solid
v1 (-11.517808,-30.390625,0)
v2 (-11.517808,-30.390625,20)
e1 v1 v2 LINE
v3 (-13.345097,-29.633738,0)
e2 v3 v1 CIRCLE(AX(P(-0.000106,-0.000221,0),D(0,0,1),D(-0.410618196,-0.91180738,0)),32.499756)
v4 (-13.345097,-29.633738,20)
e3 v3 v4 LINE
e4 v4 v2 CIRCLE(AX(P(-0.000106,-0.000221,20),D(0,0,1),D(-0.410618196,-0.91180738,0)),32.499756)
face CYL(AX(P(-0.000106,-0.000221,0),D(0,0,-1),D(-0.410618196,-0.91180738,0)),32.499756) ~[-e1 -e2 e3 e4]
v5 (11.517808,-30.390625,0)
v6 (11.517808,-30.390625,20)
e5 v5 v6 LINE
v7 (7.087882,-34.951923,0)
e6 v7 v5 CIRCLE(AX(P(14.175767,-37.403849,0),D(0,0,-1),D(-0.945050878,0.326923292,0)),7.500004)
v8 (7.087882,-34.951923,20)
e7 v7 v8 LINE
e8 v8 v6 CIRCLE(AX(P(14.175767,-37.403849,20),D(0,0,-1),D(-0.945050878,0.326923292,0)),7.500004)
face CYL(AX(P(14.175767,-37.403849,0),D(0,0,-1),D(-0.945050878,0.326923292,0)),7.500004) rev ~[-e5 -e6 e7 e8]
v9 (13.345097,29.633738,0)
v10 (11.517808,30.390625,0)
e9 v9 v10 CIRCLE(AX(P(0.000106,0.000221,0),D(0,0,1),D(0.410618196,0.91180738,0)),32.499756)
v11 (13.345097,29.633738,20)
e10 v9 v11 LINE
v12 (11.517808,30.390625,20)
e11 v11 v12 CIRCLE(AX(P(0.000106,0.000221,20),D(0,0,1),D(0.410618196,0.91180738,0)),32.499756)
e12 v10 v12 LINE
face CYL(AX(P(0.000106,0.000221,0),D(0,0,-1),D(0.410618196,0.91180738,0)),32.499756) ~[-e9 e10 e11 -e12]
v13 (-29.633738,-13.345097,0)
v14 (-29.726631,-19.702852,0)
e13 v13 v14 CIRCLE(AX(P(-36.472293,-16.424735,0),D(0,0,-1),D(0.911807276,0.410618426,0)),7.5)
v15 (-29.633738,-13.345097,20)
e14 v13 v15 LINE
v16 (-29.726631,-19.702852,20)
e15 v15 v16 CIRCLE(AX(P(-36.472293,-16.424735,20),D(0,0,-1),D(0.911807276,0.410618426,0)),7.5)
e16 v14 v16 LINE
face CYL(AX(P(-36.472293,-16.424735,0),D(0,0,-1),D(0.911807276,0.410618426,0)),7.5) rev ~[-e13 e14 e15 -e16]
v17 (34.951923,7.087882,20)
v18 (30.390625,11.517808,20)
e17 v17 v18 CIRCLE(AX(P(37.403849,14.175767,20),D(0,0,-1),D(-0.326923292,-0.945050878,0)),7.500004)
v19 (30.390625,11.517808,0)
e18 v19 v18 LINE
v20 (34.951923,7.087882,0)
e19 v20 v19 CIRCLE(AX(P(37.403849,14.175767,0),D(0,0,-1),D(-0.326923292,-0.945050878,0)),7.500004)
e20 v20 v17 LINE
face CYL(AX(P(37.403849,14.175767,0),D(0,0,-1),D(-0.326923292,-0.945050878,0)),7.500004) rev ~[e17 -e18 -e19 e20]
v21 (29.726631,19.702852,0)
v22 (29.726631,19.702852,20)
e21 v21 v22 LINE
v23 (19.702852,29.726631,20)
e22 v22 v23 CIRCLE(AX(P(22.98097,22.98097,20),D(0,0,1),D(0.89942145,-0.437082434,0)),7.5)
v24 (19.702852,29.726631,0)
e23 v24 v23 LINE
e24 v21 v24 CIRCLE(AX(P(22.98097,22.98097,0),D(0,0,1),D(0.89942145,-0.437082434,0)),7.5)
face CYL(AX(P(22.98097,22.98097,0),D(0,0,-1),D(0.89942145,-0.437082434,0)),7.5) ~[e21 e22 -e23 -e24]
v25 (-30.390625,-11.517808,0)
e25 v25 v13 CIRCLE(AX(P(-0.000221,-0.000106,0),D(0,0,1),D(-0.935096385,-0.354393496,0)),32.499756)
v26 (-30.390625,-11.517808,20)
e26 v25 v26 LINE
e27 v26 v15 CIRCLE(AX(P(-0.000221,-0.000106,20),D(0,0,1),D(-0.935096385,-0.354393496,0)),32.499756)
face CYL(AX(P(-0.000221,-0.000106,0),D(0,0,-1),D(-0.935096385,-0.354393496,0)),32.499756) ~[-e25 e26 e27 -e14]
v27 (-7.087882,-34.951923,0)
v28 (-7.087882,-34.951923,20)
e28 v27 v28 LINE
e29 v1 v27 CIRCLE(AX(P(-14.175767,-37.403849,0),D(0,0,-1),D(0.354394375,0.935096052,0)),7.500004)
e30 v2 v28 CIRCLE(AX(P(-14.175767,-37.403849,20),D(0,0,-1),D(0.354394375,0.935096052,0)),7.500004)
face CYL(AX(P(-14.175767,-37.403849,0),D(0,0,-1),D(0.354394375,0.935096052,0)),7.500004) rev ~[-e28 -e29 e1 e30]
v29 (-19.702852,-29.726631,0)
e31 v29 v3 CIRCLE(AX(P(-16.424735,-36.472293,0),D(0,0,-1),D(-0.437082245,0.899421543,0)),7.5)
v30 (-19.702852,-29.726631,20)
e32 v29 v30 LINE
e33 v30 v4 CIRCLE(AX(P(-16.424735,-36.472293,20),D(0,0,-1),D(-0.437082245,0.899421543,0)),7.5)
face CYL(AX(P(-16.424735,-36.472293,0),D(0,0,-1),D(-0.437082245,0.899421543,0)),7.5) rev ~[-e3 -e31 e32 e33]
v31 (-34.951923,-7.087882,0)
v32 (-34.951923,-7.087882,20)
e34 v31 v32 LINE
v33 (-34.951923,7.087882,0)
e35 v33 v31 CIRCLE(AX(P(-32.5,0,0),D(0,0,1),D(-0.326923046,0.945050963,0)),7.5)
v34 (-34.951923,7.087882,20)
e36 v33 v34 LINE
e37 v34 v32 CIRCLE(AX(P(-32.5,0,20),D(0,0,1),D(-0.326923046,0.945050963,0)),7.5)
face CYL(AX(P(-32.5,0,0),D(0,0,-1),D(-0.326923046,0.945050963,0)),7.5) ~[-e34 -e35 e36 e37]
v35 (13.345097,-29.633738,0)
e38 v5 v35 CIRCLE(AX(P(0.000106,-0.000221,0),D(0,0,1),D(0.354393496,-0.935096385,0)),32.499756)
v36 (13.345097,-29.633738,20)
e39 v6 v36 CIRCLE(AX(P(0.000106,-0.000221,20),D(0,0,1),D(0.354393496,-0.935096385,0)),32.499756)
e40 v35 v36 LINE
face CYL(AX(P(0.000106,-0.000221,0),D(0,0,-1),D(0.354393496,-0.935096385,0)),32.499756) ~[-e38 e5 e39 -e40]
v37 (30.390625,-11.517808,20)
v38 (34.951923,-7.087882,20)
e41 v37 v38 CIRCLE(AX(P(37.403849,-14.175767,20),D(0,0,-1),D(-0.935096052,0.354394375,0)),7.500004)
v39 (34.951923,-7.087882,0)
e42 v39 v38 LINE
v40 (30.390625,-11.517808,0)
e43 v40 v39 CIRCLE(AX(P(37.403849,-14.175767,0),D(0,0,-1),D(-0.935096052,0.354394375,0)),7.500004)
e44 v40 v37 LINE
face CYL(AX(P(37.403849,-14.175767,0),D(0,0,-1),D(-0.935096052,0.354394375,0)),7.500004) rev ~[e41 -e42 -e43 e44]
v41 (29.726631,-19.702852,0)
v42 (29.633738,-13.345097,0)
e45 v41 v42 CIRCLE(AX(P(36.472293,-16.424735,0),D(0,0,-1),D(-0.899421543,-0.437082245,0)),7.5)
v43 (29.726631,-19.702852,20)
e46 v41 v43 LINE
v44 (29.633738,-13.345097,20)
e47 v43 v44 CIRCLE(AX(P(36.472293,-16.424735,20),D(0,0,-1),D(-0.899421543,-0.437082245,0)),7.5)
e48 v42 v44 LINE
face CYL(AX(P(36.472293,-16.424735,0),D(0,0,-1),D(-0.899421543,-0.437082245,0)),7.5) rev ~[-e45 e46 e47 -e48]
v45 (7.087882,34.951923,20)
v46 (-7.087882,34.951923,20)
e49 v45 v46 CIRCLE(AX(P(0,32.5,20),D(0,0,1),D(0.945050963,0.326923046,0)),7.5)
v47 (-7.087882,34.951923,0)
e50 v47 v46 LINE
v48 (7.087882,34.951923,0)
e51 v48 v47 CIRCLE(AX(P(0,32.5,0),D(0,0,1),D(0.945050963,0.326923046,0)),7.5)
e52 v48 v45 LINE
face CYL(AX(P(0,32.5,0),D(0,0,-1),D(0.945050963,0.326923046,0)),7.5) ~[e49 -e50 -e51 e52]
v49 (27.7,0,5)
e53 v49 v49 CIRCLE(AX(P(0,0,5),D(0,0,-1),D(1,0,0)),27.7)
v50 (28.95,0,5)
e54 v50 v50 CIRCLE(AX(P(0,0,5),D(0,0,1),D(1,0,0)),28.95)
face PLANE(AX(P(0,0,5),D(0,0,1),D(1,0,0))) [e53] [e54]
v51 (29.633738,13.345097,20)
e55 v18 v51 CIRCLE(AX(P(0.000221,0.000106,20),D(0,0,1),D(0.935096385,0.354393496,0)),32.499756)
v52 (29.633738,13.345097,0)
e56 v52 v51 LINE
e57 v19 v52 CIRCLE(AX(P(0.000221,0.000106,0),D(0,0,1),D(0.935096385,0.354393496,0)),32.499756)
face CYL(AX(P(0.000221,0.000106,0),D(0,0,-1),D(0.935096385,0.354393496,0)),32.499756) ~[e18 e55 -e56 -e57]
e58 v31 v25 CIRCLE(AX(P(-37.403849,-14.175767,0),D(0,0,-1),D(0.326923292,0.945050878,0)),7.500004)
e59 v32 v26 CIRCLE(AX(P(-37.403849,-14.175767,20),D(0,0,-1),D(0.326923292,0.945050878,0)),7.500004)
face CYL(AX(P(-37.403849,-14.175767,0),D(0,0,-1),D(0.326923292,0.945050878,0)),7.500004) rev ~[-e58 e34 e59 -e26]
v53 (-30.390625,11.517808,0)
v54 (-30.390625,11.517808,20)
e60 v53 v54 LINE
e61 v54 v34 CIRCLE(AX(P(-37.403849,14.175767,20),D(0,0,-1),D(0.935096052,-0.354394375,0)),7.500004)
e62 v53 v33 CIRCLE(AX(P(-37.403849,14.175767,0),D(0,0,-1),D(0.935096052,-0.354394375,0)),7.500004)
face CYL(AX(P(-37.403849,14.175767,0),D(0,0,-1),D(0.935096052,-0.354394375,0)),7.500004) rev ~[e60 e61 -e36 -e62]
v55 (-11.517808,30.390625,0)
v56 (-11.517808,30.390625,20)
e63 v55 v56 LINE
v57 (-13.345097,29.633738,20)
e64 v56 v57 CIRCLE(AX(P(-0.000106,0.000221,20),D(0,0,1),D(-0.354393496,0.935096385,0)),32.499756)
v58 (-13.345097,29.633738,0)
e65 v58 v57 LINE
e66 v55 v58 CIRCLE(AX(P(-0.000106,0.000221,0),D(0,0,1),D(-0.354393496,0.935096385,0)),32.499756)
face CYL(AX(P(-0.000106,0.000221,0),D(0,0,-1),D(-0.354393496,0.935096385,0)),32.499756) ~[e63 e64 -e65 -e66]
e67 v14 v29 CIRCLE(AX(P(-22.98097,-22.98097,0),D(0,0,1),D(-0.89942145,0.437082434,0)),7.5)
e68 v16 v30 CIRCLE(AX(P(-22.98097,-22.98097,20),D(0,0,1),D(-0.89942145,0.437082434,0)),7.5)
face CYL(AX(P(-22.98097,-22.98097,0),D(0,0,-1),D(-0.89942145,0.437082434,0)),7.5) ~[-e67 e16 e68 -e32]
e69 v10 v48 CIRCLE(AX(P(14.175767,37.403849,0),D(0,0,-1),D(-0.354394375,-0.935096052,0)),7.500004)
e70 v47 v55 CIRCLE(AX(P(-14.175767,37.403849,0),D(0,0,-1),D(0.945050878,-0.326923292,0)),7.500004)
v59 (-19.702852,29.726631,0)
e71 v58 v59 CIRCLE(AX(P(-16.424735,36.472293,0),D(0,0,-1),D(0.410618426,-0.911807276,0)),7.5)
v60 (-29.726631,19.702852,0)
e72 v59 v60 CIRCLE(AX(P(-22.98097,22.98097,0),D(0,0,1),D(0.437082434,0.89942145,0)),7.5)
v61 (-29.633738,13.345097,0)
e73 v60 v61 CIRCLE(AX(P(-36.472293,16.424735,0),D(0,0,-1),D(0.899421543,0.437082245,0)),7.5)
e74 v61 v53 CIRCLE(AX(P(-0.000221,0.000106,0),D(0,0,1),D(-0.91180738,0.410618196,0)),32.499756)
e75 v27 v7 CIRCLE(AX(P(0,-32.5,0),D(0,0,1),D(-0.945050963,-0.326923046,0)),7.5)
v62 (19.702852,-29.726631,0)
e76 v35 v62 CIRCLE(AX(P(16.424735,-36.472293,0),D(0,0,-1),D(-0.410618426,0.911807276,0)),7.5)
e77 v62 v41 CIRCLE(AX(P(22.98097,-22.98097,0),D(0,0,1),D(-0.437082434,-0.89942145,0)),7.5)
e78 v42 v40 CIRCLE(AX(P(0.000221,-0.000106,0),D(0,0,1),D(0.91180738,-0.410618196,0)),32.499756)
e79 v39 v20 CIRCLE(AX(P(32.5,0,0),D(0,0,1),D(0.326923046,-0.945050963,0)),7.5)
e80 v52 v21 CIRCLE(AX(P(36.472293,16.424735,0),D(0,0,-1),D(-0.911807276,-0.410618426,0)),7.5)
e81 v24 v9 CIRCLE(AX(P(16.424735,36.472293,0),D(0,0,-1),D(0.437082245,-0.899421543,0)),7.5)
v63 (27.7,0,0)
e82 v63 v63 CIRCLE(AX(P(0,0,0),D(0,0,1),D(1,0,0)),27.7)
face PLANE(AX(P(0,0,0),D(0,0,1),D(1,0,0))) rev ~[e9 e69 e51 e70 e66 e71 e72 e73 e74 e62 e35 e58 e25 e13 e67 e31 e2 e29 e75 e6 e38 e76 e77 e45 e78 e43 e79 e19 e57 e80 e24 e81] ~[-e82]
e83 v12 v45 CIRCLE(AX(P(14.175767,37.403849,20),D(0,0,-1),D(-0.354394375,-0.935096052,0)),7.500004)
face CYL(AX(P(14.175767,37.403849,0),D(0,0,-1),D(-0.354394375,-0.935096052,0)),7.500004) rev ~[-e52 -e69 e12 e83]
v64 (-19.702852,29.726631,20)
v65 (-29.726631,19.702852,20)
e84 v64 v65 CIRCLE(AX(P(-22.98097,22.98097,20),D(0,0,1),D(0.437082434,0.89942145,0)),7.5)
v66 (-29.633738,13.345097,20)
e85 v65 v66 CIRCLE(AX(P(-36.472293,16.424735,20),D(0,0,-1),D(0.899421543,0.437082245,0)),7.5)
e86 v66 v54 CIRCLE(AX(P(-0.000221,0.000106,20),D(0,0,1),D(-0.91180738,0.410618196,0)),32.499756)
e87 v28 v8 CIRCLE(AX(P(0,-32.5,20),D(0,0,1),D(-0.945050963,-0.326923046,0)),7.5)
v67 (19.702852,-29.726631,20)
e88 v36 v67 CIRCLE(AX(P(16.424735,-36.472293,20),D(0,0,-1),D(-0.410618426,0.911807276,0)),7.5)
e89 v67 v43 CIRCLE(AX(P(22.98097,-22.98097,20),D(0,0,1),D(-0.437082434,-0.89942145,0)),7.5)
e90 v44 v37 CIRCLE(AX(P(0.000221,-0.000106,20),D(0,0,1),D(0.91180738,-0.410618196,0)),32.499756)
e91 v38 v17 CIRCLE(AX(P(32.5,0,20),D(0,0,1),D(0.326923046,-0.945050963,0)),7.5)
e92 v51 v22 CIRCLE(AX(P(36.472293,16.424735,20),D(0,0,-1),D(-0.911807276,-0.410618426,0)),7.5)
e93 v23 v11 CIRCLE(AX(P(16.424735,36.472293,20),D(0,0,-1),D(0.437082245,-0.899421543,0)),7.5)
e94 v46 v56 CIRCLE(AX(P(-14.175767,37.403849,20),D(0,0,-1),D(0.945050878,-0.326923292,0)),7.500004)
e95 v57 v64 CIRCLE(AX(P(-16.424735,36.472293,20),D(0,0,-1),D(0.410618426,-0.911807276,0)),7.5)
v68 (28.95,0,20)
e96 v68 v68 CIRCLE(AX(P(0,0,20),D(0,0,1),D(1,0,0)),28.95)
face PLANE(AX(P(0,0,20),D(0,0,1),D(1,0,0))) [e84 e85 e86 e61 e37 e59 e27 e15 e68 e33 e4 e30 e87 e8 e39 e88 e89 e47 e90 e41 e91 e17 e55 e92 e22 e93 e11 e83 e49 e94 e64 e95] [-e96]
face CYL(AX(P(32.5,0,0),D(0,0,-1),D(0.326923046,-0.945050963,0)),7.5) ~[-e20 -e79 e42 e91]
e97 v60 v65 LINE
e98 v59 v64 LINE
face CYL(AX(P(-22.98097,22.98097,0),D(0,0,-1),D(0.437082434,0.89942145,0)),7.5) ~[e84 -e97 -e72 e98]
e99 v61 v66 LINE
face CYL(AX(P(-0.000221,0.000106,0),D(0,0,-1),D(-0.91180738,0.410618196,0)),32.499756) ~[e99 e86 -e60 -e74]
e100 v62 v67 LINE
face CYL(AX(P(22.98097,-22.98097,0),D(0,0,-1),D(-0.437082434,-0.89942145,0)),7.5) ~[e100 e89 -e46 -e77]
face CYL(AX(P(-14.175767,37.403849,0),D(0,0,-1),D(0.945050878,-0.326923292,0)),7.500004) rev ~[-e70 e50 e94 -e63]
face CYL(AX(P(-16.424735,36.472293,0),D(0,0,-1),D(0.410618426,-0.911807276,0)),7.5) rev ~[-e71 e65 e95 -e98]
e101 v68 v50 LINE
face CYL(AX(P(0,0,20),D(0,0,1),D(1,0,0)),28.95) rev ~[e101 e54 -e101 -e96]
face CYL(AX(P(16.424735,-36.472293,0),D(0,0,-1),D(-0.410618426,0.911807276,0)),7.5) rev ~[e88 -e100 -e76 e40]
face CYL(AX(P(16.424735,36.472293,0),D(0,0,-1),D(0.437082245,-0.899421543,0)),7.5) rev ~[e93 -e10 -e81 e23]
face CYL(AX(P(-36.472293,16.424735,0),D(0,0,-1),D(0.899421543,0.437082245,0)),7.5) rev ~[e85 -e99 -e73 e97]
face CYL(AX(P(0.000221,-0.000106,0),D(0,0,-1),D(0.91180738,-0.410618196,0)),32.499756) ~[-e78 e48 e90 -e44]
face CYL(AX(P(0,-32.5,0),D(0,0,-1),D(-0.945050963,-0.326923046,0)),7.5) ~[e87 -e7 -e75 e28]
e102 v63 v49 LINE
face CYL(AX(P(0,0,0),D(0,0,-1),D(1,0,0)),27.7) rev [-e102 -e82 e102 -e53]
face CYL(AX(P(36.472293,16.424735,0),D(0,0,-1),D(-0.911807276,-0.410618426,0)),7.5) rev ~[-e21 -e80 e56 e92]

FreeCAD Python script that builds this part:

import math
import FreeCAD as App
import Part
import Sketcher
Q = App.Units.Quantity

doc = App.newDocument("Part")
body = doc.addObject("PartDesign::Body", "Body")

sketch1 = doc.addObject("Sketcher::SketchObject", "Sketch")
body.addObject(sketch1)
sketch1.AttachmentSupport = (doc.XY_Plane, [""])
sketch1.MapMode = "FlatFace"
sketch1.addGeometry([
    Part.ArcOfCircle(Part.Circle(App.Vector(-14.2, 37.4, 0), App.Vector(0, 0, 1), 7.5), math.radians(-69), math.radians(-19)),
    Part.ArcOfCircle(Part.Circle(App.Vector(0, 0, 0), App.Vector(0, 0, 1), 32.5), math.radians(110.76), math.radians(114.24)),
    Part.ArcOfCircle(Part.Circle(App.Vector(-16.4, 36.5, 0), App.Vector(0, 0, 1), 7.5), math.radians(-116), math.radians(-66)),
    Part.ArcOfCircle(Part.Circle(App.Vector(-23, 23, 0), App.Vector(0, 0, 1), 7.5), math.radians(64), math.radians(206)),
    Part.ArcOfCircle(Part.Circle(App.Vector(-36.5, 16.4, 0), App.Vector(0, 0, 1), 7.5), math.radians(-24), math.radians(26)),
    Part.ArcOfCircle(Part.Circle(App.Vector(0, 0, 0), App.Vector(0, 0, 1), 32.5), math.radians(155.76), math.radians(159.24)),
    Part.ArcOfCircle(Part.Circle(App.Vector(-37.4, 14.2, 0), App.Vector(0, 0, 1), 7.5), math.radians(-71), math.radians(-21)),
    Part.ArcOfCircle(Part.Circle(App.Vector(-32.5, 0, 0), App.Vector(0, 0, 1), 7.5), math.radians(109), math.radians(251)),
    Part.ArcOfCircle(Part.Circle(App.Vector(-37.4, -14.2, 0), App.Vector(0, 0, 1), 7.5), math.radians(21), math.radians(71)),
    Part.ArcOfCircle(Part.Circle(App.Vector(0, 0, 0), App.Vector(0, 0, 1), 32.5), math.radians(-159.24), math.radians(-155.76)),
    Part.ArcOfCircle(Part.Circle(App.Vector(-36.5, -16.4, 0), App.Vector(0, 0, 1), 7.5), math.radians(-26), math.radians(24)),
    Part.ArcOfCircle(Part.Circle(App.Vector(-23, -23, 0), App.Vector(0, 0, 1), 7.5), math.radians(154), math.radians(296)),
    Part.ArcOfCircle(Part.Circle(App.Vector(-16.4, -36.5, 0), App.Vector(0, 0, 1), 7.5), math.radians(66), math.radians(116)),
    Part.ArcOfCircle(Part.Circle(App.Vector(0, 0, 0), App.Vector(0, 0, 1), 32.5), math.radians(-114.24), math.radians(-110.76)),
    Part.ArcOfCircle(Part.Circle(App.Vector(-14.2, -37.4, 0), App.Vector(0, 0, 1), 7.5), math.radians(19), math.radians(69)),
    Part.ArcOfCircle(Part.Circle(App.Vector(0, -32.5, 0), App.Vector(0, 0, 1), 7.5), math.radians(-161), math.radians(-19)),
    Part.ArcOfCircle(Part.Circle(App.Vector(14.2, -37.4, 0), App.Vector(0, 0, 1), 7.5), math.radians(111), math.radians(161)),
    Part.ArcOfCircle(Part.Circle(App.Vector(0, 0, 0), App.Vector(0, 0, 1), 32.5), math.radians(-69.24), math.radians(-65.76)),
    Part.ArcOfCircle(Part.Circle(App.Vector(16.4, -36.5, 0), App.Vector(0, 0, 1), 7.5), math.radians(64), math.radians(114)),
    Part.ArcOfCircle(Part.Circle(App.Vector(23, -23, 0), App.Vector(0, 0, 1), 7.5), math.radians(-116), math.radians(26)),
    Part.ArcOfCircle(Part.Circle(App.Vector(36.5, -16.4, 0), App.Vector(0, 0, 1), 7.5), math.radians(156), math.radians(206)),
    Part.ArcOfCircle(Part.Circle(App.Vector(0, 0, 0), App.Vector(0, 0, 1), 32.5), math.radians(-24.24), math.radians(-20.76)),
    Part.ArcOfCircle(Part.Circle(App.Vector(37.4, -14.2, 0), App.Vector(0, 0, 1), 7.5), math.radians(109), math.radians(159)),
    Part.ArcOfCircle(Part.Circle(App.Vector(32.5, 0, 0), App.Vector(0, 0, 1), 7.5), math.radians(-71), math.radians(71)),
    Part.ArcOfCircle(Part.Circle(App.Vector(37.4, 14.2, 0), App.Vector(0, 0, 1), 7.5), math.radians(-159), math.radians(-109)),
    Part.ArcOfCircle(Part.Circle(App.Vector(0, 0, 0), App.Vector(0, 0, 1), 32.5), math.radians(20.76), math.radians(24.24)),
    Part.ArcOfCircle(Part.Circle(App.Vector(36.5, 16.4, 0), App.Vector(0, 0, 1), 7.5), math.radians(154), math.radians(204)),
    Part.ArcOfCircle(Part.Circle(App.Vector(23, 23, 0), App.Vector(0, 0, 1), 7.5), math.radians(-26), math.radians(116)),
    Part.ArcOfCircle(Part.Circle(App.Vector(16.4, 36.5, 0), App.Vector(0, 0, 1), 7.5), math.radians(-114), math.radians(-64)),
    Part.ArcOfCircle(Part.Circle(App.Vector(0, 0, 0), App.Vector(0, 0, 1), 32.5), math.radians(65.76), math.radians(69.24)),
    Part.ArcOfCircle(Part.Circle(App.Vector(14.2, 37.4, 0), App.Vector(0, 0, 1), 7.5), math.radians(-161), math.radians(-111)),
    Part.ArcOfCircle(Part.Circle(App.Vector(0, 32.5, 0), App.Vector(0, 0, 1), 7.5), math.radians(19), math.radians(161)),
    Part.Circle(App.Vector(0, 0, 0), App.Vector(0, 0, 1), 27.7),
], False)
sketch1.addConstraint([
    Sketcher.Constraint("Tangent", 0, 1, 1, 1),
    Sketcher.Constraint("Tangent", 1, 2, 2, 2),
    Sketcher.Constraint("Tangent", 2, 1, 3, 1),
    Sketcher.Constraint("Tangent", 3, 2, 4, 2),
    Sketcher.Constraint("Tangent", 4, 1, 5, 1),
    Sketcher.Constraint("Tangent", 5, 2, 6, 2),
    Sketcher.Constraint("Tangent", 6, 1, 7, 1),
    Sketcher.Constraint("Tangent", 7, 2, 8, 2),
    Sketcher.Constraint("Tangent", 8, 1, 9, 1),
    Sketcher.Constraint("Tangent", 9, 2, 10, 2),
    Sketcher.Constraint("Tangent", 10, 1, 11, 1),
    Sketcher.Constraint("Tangent", 11, 2, 12, 2),
    Sketcher.Constraint("Tangent", 12, 1, 13, 1),
    Sketcher.Constraint("Tangent", 13, 2, 14, 2),
    Sketcher.Constraint("Tangent", 14, 1, 15, 1),
    Sketcher.Constraint("Tangent", 15, 2, 16, 2),
    Sketcher.Constraint("Tangent", 16, 1, 17, 1),
    Sketcher.Constraint("Tangent", 17, 2, 18, 2),
    Sketcher.Constraint("Tangent", 18, 1, 19, 1),
    Sketcher.Constraint("Tangent", 19, 2, 20, 2),
    Sketcher.Constraint("Tangent", 20, 1, 21, 1),
    Sketcher.Constraint("Tangent", 21, 2, 22, 2),
    Sketcher.Constraint("Tangent", 22, 1, 23, 1),
    Sketcher.Constraint("Tangent", 23, 2, 24, 2),
    Sketcher.Constraint("Tangent", 24, 1, 25, 1),
    Sketcher.Constraint("Tangent", 25, 2, 26, 2),
    Sketcher.Constraint("Tangent", 26, 1, 27, 1),
    Sketcher.Constraint("Tangent", 27, 2, 28, 2),
    Sketcher.Constraint("Tangent", 28, 1, 29, 1),
    Sketcher.Constraint("Tangent", 29, 2, 30, 2),
    Sketcher.Constraint("Tangent", 30, 1, 31, 1),
    Sketcher.Constraint("Tangent", 31, 2, 0, 2),
    Sketcher.Constraint("Coincident", 32, 3, -1, 1),
    Sketcher.Constraint("Equal", 2, 3),
    Sketcher.Constraint("Equal", 3, 4),
    Sketcher.Constraint("Equal", 1, 5),
    Sketcher.Constraint("Equal", 0, 6),
    Sketcher.Constraint("Equal", 4, 7),
    Sketcher.Constraint("Equal", 6, 8),
    Sketcher.Constraint("Equal", 5, 9),
    Sketcher.Constraint("Equal", 7, 10),
    Sketcher.Constraint("Equal", 10, 11),
    Sketcher.Constraint("Equal", 11, 12),
    Sketcher.Constraint("Equal", 9, 13),
    Sketcher.Constraint("Equal", 8, 14),
    Sketcher.Constraint("Equal", 12, 15),
    Sketcher.Constraint("Equal", 14, 16),
    Sketcher.Constraint("Equal", 13, 17),
    Sketcher.Constraint("Equal", 15, 18),
    Sketcher.Constraint("Equal", 18, 19),
    Sketcher.Constraint("Equal", 19, 20),
    Sketcher.Constraint("Equal", 17, 21),
    Sketcher.Constraint("Equal", 16, 22),
    Sketcher.Constraint("Equal", 20, 23),
    Sketcher.Constraint("Equal", 22, 24),
    Sketcher.Constraint("Equal", 21, 25),
    Sketcher.Constraint("Equal", 23, 26),
    Sketcher.Constraint("Equal", 26, 27),
    Sketcher.Constraint("Equal", 27, 28),
    Sketcher.Constraint("Equal", 25, 29),
    Sketcher.Constraint("Equal", 24, 30),
    Sketcher.Constraint("Equal", 28, 31),
    Sketcher.Constraint("Symmetric", 0, 3, 16, 3, -1, 1),
    Sketcher.Constraint("Symmetric", 2, 3, 18, 3, -1, 1),
    Sketcher.Constraint("Symmetric", 4, 3, 20, 3, -1, 1),
    Sketcher.Constraint("Symmetric", 6, 3, 22, 3, -1, 1),
    Sketcher.Constraint("Symmetric", 8, 3, 24, 3, -1, 1),
    Sketcher.Constraint("Symmetric", 10, 3, 26, 3, -1, 1),
    Sketcher.Constraint("Symmetric", 12, 3, 28, 3, -1, 1),
    Sketcher.Constraint("Symmetric", 14, 3, 30, 3, -1, 1),
    Sketcher.Constraint("Symmetric", 14, 3, 16, 3, -2),
    Sketcher.Constraint("Symmetric", 12, 3, 18, 3, -2),
    Sketcher.Constraint("Symmetric", 10, 3, 20, 3, -2),
    Sketcher.Constraint("Symmetric", 8, 3, 22, 3, -2),
    Sketcher.Constraint("Diameter", 32, Q("55.4 mm")),
    Sketcher.Constraint("Radius", 2, Q("7.5 mm")),
    Sketcher.Constraint("DistanceX", 7, 3, -1, 1, Q("32.5 mm")),
    Sketcher.Constraint("DistanceY", 15, 3, -1, 1, Q("32.5 mm")),
    Sketcher.Constraint("Radius", 0, Q("7.500004 mm")),
    Sketcher.Constraint("Radius", 1, Q("32.499756 mm")),
    Sketcher.Constraint("DistanceY", -1, 1, 0, 3, Q("37.403849 mm")),
    Sketcher.Constraint("DistanceY", -1, 1, 1, 3, Q("0.000221 mm")),
    Sketcher.Constraint("DistanceX", 3, 3, -1, 1, Q("22.98097 mm")),
    Sketcher.Constraint("DistanceY", -1, 1, 3, 3, Q("22.98097 mm")),
    Sketcher.Constraint("DistanceX", 5, 3, -1, 1, Q("0.000221 mm")),
    Sketcher.Constraint("DistanceX", 6, 3, -1, 1, Q("37.403849 mm")),
])
pad1 = doc.addObject("PartDesign::Pad", "Pad")
body.addObject(pad1)
pad1.Profile = sketch1
pad1.Length = 20

sketch2 = doc.addObject("Sketcher::SketchObject", "Sketch001")
body.addObject(sketch2)
sketch2.AttachmentSupport = (doc.XY_Plane, [""])
sketch2.MapMode = "FlatFace"
sketch2.AttachmentOffset = App.Placement(App.Vector(0, 0, 20), App.Rotation())
sketch2.addGeometry(Part.Circle(App.Vector(0, 0, 0), App.Vector(0, 0, 1), 29), False)
sketch2.addConstraint([
    Sketcher.Constraint("Coincident", 0, 3, -1, 1),
    Sketcher.Constraint("Diameter", 0, Q("57.9 mm")),
])
pocket1 = doc.addObject("PartDesign::Pocket", "Pocket")
body.addObject(pocket1)
pocket1.Profile = sketch2
pocket1.Length = 15

doc.recompute()
